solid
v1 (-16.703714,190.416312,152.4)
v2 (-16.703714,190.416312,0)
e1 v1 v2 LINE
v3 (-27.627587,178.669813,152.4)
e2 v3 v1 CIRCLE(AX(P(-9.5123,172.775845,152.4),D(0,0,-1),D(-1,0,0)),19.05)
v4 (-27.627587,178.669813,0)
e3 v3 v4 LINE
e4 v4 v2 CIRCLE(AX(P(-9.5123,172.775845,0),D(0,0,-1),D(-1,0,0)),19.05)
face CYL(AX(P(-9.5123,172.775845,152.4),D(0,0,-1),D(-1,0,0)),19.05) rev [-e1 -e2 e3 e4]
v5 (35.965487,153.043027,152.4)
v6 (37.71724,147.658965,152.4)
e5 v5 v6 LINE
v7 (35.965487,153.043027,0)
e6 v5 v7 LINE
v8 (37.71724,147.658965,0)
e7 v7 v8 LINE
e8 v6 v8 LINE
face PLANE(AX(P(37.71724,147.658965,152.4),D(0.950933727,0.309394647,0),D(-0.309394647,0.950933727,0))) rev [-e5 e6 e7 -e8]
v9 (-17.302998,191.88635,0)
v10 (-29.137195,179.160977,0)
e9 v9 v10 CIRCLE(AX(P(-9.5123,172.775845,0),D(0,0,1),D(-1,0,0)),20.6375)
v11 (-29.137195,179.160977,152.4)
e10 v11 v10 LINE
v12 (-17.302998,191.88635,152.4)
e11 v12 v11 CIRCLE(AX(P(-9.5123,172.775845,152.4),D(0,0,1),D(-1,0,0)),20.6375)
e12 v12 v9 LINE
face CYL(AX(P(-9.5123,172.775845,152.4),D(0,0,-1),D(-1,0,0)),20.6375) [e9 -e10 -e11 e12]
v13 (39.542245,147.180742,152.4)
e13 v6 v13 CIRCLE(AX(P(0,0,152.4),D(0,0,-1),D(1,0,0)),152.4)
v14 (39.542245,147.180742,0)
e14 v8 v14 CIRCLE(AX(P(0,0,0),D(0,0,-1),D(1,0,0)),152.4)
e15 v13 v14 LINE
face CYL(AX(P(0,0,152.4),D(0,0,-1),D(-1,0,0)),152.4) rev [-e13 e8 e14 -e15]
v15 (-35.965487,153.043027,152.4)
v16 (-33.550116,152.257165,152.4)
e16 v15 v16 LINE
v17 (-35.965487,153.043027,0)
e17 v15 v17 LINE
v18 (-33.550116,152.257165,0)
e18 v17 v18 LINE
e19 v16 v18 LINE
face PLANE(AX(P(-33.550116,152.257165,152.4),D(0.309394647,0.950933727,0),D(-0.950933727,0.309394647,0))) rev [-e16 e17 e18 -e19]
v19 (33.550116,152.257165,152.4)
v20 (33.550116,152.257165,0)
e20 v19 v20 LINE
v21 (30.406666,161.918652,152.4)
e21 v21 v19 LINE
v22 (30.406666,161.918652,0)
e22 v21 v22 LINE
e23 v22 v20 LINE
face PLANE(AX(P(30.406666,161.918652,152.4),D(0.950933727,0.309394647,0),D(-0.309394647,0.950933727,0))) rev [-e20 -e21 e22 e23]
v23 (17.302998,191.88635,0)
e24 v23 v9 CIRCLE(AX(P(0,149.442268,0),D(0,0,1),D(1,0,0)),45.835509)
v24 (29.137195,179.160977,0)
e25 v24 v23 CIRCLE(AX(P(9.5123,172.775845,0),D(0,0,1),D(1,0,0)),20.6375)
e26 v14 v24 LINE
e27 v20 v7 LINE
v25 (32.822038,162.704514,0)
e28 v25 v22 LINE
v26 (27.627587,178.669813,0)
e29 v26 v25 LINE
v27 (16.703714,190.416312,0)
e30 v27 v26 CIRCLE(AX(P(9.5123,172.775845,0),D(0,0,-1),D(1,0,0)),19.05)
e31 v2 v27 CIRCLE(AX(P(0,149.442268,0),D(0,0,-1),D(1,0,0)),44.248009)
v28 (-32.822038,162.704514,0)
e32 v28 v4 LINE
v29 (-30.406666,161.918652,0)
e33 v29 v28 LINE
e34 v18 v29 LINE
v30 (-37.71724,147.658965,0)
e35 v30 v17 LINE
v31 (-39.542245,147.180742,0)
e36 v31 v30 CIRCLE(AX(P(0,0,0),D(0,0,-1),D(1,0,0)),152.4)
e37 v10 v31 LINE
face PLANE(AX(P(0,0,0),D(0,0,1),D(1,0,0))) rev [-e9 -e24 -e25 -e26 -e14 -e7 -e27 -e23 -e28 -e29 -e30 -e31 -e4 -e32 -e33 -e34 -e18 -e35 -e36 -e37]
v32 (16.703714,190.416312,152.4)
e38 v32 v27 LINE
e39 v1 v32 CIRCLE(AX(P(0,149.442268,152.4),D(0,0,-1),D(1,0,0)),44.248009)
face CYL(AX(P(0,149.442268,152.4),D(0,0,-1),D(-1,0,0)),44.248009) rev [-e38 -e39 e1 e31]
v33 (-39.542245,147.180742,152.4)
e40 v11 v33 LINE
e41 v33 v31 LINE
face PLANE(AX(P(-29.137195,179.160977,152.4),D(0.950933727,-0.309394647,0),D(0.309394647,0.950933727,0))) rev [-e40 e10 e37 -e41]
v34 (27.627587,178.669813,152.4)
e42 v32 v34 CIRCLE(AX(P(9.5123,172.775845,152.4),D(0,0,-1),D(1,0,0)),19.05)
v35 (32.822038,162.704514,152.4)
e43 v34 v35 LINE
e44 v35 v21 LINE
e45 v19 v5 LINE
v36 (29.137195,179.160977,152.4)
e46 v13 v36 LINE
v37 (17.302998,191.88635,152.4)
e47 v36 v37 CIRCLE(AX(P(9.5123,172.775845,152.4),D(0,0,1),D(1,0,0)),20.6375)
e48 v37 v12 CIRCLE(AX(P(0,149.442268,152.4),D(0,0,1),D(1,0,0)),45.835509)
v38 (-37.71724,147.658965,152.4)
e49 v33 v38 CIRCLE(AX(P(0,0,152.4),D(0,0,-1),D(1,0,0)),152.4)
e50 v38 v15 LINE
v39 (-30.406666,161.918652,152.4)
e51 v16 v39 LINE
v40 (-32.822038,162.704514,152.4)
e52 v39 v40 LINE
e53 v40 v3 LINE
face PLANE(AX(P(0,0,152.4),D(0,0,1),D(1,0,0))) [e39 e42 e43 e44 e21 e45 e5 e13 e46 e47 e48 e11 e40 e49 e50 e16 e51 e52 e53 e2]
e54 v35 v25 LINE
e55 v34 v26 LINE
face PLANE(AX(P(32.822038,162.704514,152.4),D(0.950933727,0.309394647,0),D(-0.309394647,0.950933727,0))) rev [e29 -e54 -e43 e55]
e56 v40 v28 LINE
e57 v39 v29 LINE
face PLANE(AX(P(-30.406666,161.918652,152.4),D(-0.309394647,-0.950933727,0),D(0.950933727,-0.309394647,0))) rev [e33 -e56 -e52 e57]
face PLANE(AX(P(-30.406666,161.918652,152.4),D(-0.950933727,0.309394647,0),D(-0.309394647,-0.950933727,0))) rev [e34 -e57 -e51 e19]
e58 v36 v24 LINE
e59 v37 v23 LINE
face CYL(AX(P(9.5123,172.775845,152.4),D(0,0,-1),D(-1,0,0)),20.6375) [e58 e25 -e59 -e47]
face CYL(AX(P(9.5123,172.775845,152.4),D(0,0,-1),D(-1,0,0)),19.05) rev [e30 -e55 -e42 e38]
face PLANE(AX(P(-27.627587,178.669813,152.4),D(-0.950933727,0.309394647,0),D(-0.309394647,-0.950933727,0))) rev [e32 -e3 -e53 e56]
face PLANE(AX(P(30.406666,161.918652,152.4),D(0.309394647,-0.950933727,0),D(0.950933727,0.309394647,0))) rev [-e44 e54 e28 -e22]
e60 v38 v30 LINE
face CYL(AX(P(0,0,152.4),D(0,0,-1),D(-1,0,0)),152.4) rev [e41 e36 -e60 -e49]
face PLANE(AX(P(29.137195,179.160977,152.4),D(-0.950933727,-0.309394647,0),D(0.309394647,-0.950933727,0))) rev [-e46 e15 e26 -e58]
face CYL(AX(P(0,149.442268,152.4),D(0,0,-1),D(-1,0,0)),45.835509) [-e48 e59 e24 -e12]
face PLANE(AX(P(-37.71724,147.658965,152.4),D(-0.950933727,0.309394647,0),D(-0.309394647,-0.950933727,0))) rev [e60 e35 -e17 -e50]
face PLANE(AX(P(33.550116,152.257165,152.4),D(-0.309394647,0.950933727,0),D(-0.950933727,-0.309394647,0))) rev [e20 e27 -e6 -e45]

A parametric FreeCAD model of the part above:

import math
import FreeCAD as App
import Part
import Sketcher
from FreeCAD import Vector
Q = App.Units.Quantity

doc = App.newDocument("Part")
params = doc.addObject("Spreadsheet::Sheet", "Params")
for row, (alias, value) in enumerate([
    ("sketch1_radius", "0.75 in"),
    ("sketch1_radius2", "0.8125 in"),
    ("sketch1_length", "0.1 in"),
    ("sketch1_length2", "0.4 in"),
    ("pad1_length", "6 in"),
], start=1):
    params.set(f"A{row}", alias)
    params.set(f"B{row}", "=" + value)
    params.setAlias(f"B{row}", alias)

body = doc.addObject("PartDesign::Body", "Body")

sketch1 = doc.addObject("Sketcher::SketchObject", "Sketch")
body.addObject(sketch1)
sketch1.AttachmentSupport = (doc.XY_Plane, [""])
sketch1.MapMode = "FlatFace"
sketch1.addGeometry(Part.LineSegment(Vector(36, 153, 0), Vector(37.7, 147.7, 0)), False)
sketch1.addGeometry(Part.ArcOfCircle(Part.Circle(Vector(0, 0, 0), Vector(0, 0, 1), 152.4), math.radians(74.96), math.radians(75.67)), False)
sketch1.addGeometry(Part.LineSegment(Vector(39.5, 147.2, 0), Vector(29.1, 179.2, 0)), False)
sketch1.addGeometry(Part.ArcOfCircle(Part.Circle(Vector(9.5, 172.8, 0), Vector(0, 0, 1), 20.6), math.radians(18), math.radians(68)), False)
sketch1.addGeometry(Part.ArcOfCircle(Part.Circle(Vector(0, 149.4, 0), Vector(0, 0, 1), 45.8), math.radians(68), math.radians(112)), False)
sketch1.addGeometry(Part.ArcOfCircle(Part.Circle(Vector(-9.5, 172.8, 0), Vector(0, 0, 1), 20.6), math.radians(112), math.radians(162)), False)
sketch1.addGeometry(Part.LineSegment(Vector(-29.1, 179.2, 0), Vector(-39.5, 147.2, 0)), False)
sketch1.addGeometry(Part.ArcOfCircle(Part.Circle(Vector(0, 0, 0), Vector(0, 0, 1), 152.4), math.radians(104.33), math.radians(105.04)), False)
sketch1.addGeometry(Part.LineSegment(Vector(-37.7, 147.7, 0), Vector(-36, 153, 0)), False)
sketch1.addGeometry(Part.LineSegment(Vector(-36, 153, 0), Vector(-33.6, 152.3, 0)), False)
sketch1.addGeometry(Part.LineSegment(Vector(-33.6, 152.3, 0), Vector(-30.4, 161.9, 0)), False)
sketch1.addGeometry(Part.LineSegment(Vector(-30.4, 161.9, 0), Vector(-32.8, 162.7, 0)), False)
sketch1.addGeometry(Part.LineSegment(Vector(-32.8, 162.7, 0), Vector(-32, 165.1, 0)), False)
sketch1.addGeometry(Part.LineSegment(Vector(-32, 165.1, 0), Vector(-27.6, 178.7, 0)), False)
sketch1.addGeometry(Part.ArcOfCircle(Part.Circle(Vector(-9.5, 172.8, 0), Vector(0, 0, 1), 19.1), math.radians(112), math.radians(162)), False)
sketch1.addGeometry(Part.ArcOfCircle(Part.Circle(Vector(0, 149.4, 0), Vector(0, 0, 1), 44.2), math.radians(68), math.radians(112)), False)
sketch1.addGeometry(Part.ArcOfCircle(Part.Circle(Vector(9.5, 172.8, 0), Vector(0, 0, 1), 19.1), math.radians(18), math.radians(68)), False)
sketch1.addGeometry(Part.LineSegment(Vector(27.6, 178.7, 0), Vector(32, 165.1, 0)), False)
sketch1.addGeometry(Part.LineSegment(Vector(32, 165.1, 0), Vector(32.8, 162.7, 0)), False)
sketch1.addGeometry(Part.LineSegment(Vector(32.8, 162.7, 0), Vector(30.4, 161.9, 0)), False)
sketch1.addGeometry(Part.LineSegment(Vector(30.4, 161.9, 0), Vector(33.6, 152.3, 0)), False)
sketch1.addGeometry(Part.LineSegment(Vector(33.6, 152.3, 0), Vector(36, 153, 0)), False)
sketch1.addConstraint(Sketcher.Constraint("Coincident", 0, 2, 1, 2))
sketch1.addConstraint(Sketcher.Constraint("Coincident", 1, 1, 2, 1))
sketch1.addConstraint(Sketcher.Constraint("Tangent", 2, 2, 3, 1))
sketch1.addConstraint(Sketcher.Constraint("Tangent", 3, 2, 4, 1))
sketch1.addConstraint(Sketcher.Constraint("Tangent", 4, 2, 5, 1))
sketch1.addConstraint(Sketcher.Constraint("Tangent", 5, 2, 6, 1))
sketch1.addConstraint(Sketcher.Constraint("Coincident", 6, 2, 7, 2))
sketch1.addConstraint(Sketcher.Constraint("Coincident", 7, 1, 8, 1))
sketch1.addConstraint(Sketcher.Constraint("Coincident", 8, 2, 9, 1))
sketch1.addConstraint(Sketcher.Constraint("Coincident", 9, 2, 10, 1))
sketch1.addConstraint(Sketcher.Constraint("Coincident", 10, 2, 11, 1))
sketch1.addConstraint(Sketcher.Constraint("Coincident", 11, 2, 12, 1))
sketch1.addConstraint(Sketcher.Constraint("Coincident", 12, 2, 13, 1))
sketch1.addConstraint(Sketcher.Constraint("Tangent", 13, 2, 14, 2))
sketch1.addConstraint(Sketcher.Constraint("Tangent", 14, 1, 15, 2))
sketch1.addConstraint(Sketcher.Constraint("Tangent", 15, 1, 16, 2))
sketch1.addConstraint(Sketcher.Constraint("Tangent", 16, 1, 17, 1))
sketch1.addConstraint(Sketcher.Constraint("Coincident", 17, 2, 18, 1))
sketch1.addConstraint(Sketcher.Constraint("Coincident", 18, 2, 19, 1))
sketch1.addConstraint(Sketcher.Constraint("Coincident", 19, 2, 20, 1))
sketch1.addConstraint(Sketcher.Constraint("Coincident", 20, 2, 21, 1))
sketch1.addConstraint(Sketcher.Constraint("Coincident", 21, 2, 0, 1))
sketch1.addConstraint(Sketcher.Constraint("Coincident", 1, 3, -1, 1))
sketch1.addConstraint(Sketcher.Constraint("Coincident", 7, 3, -1, 1))
sketch1.addConstraint(Sketcher.Constraint("Coincident", 14, 3, 5, 3))
sketch1.addConstraint(Sketcher.Constraint("Coincident", 15, 3, 4, 3))
sketch1.addConstraint(Sketcher.Constraint("Coincident", 16, 3, 3, 3))
sketch1.addConstraint(Sketcher.Constraint("Equal", 3, 5))
sketch1.addConstraint(Sketcher.Constraint("Equal", 1, 7))
sketch1.addConstraint(Sketcher.Constraint("Symmetric", 3, 3, 5, 3, -2))
sketch1.addConstraint(Sketcher.Constraint("Symmetric", 12, 2, 17, 2, -2))
sketch1.addConstraint(Sketcher.Constraint("Symmetric", 11, 2, 18, 2, -2))
sketch1.addConstraint(Sketcher.Constraint("Symmetric", 10, 2, 19, 2, -2))
sketch1.addConstraint(Sketcher.Constraint("Symmetric", 9, 2, 20, 2, -2))
sketch1.addConstraint(Sketcher.Constraint("Symmetric", 8, 2, 21, 2, -2))
sketch1.addConstraint(Sketcher.Constraint("Parallel", 0, 2))
sketch1.addConstraint(Sketcher.Constraint("Parallel", 6, 8))
sketch1.addConstraint(Sketcher.Constraint("Perpendicular", 8, 9))
sketch1.addConstraint(Sketcher.Constraint("Perpendicular", 9, 10))
sketch1.addConstraint(Sketcher.Constraint("Perpendicular", 10, 11))
sketch1.addConstraint(Sketcher.Constraint("Perpendicular", 11, 12))
sketch1.addConstraint(Sketcher.Constraint("Parallel", 12, 13))
sketch1.addConstraint(Sketcher.Constraint("Parallel", 2, 17))
sketch1.addConstraint(Sketcher.Constraint("Equal", 9, 11))
sketch1.addConstraint(Sketcher.Constraint("Equal", 11, 12))
sketch1.addConstraint(Sketcher.Constraint("Radius", 14, Q("0.75 in")))
sketch1.addConstraint(Sketcher.Constraint("Radius", 3, Q("0.8125 in")))
sketch1.addConstraint(Sketcher.Constraint("Distance", 9, Q("0.1 in")))
sketch1.addConstraint(Sketcher.Constraint("Distance", 10, Q("0.4 in")))
sketch1.addConstraint(Sketcher.Constraint("Radius", 1, 152.399992))
sketch1.addConstraint(Sketcher.Constraint("Radius", 4, 45.835509))
sketch1.addConstraint(Sketcher.Constraint("DistanceX", 5, 3, 3, 3, Q("0.749 in")))
sketch1.addConstraint(Sketcher.Constraint("DistanceY", 7, 1, 9, 2, 4.5982))
sketch1.addConstraint(Sketcher.Constraint("DistanceY", 11, 2, 13, 2, 15.965299))
sketch1.addConstraint(Sketcher.Constraint("DistanceY", 13, 2, 14, 1, 11.746499))
sketch1.setExpression("Constraints[45]", "Params.sketch1_radius")
sketch1.setExpression("Constraints[46]", "Params.sketch1_radius2")
sketch1.setExpression("Constraints[47]", "Params.sketch1_length")
sketch1.setExpression("Constraints[48]", "Params.sketch1_length2")
pad1 = doc.addObject("PartDesign::Pad", "Pad")
body.addObject(pad1)
pad1.Profile = sketch1
pad1.setExpression("Length", "Params.pad1_length")

doc.recompute()
